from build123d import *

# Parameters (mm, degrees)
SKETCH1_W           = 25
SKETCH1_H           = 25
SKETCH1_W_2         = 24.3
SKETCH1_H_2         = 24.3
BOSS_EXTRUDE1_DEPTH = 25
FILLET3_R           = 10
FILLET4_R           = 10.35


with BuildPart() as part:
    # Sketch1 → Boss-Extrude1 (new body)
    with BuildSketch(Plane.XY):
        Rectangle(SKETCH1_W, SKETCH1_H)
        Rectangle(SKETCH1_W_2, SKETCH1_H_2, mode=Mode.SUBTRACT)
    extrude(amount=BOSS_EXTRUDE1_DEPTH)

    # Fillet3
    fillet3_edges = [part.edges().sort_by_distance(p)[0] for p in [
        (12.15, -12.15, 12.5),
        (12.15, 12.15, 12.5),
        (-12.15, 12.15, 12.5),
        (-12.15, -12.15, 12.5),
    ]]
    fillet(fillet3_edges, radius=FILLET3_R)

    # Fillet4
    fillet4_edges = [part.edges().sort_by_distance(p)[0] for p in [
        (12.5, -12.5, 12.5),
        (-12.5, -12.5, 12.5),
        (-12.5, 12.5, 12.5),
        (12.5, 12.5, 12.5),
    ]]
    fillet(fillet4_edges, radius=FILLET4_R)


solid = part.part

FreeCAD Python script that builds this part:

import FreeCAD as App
import Part
import Sketcher
from FreeCAD import Vector
Q = App.Units.Quantity


def edges_at(feature, points):
    """Names of the edges that pass closest to the given points."""
    edges = feature.Shape.Edges
    near = lambda p: min(range(len(edges)), key=lambda i: edges[i].distToShape(Part.Vertex(*p))[0])
    return sorted({f"Edge{near(p) + 1}" for p in points})

doc = App.newDocument("Part")
body = doc.addObject("PartDesign::Body", "Body")

# Sketch on XY plane
sketch1 = body.newObject("Sketcher::SketchObject", "Sketch")
sketch1.AttachmentSupport = (doc.getObject("XY_Plane"), [""])
sketch1.MapMode = "FlatFace"
sketch1.addGeometry([
    Part.LineSegment(Vector(-12, 12, 0), Vector(-12, -12, 0)),  # 0
    Part.LineSegment(Vector(-12, -12, 0), Vector(12, -12, 0)),  # 1
    Part.LineSegment(Vector(12, -12, 0), Vector(12, 12, 0)),  # 2
    Part.LineSegment(Vector(12, 12, 0), Vector(-12, 12, 0)),  # 3
    Part.LineSegment(Vector(12, -12, 0), Vector(-12, -12, 0)),  # 4
    Part.LineSegment(Vector(-12, -12, 0), Vector(-12, 12, 0)),  # 5
    Part.LineSegment(Vector(-12, 12, 0), Vector(12, 12, 0)),  # 6
    Part.LineSegment(Vector(12, 12, 0), Vector(12, -12, 0)),  # 7
], False)
sketch1.addConstraint([
    Sketcher.Constraint("Coincident", 0, 2, 1, 1),
    Sketcher.Constraint("Coincident", 1, 2, 2, 1),
    Sketcher.Constraint("Coincident", 2, 2, 3, 1),
    Sketcher.Constraint("Coincident", 3, 2, 0, 1),
    Sketcher.Constraint("Coincident", 4, 2, 5, 1),
    Sketcher.Constraint("Coincident", 5, 2, 6, 1),
    Sketcher.Constraint("Coincident", 6, 2, 7, 1),
    Sketcher.Constraint("Coincident", 7, 2, 4, 1),
    Sketcher.Constraint("Vertical", 0),
    Sketcher.Constraint("Horizontal", 1),
    Sketcher.Constraint("Vertical", 2),
    Sketcher.Constraint("Horizontal", 3),
    Sketcher.Constraint("Horizontal", 4),
    Sketcher.Constraint("Vertical", 5),
    Sketcher.Constraint("Horizontal", 6),
    Sketcher.Constraint("Vertical", 7),
    Sketcher.Constraint("Symmetric", 0, 2, 2, 2, -1, 1),
    Sketcher.Constraint("Symmetric", 4, 2, 6, 2, -1, 1),
    Sketcher.Constraint("Equal", 3, 0),
    Sketcher.Constraint("Equal", 6, 5),
    Sketcher.Constraint("DistanceX", 1, 1, 1, 2, Q("25 mm")),
    Sketcher.Constraint("DistanceX", 4, 2, 4, 1, Q("24.3 mm")),
])
pad1 = body.newObject("PartDesign::Pad", "Pad")
pad1.Profile = sketch1
pad1.Length = 25
doc.recompute()

fillet = body.newObject("PartDesign::Fillet", "Fillet")
fillet.Base = (pad1, edges_at(pad1, [
    (12.15, -12.15, 12.5),
    (12.15, 12.15, 12.5),
    (-12.15, 12.15, 12.5),
    (-12.15, -12.15, 12.5),
]))
fillet.Radius = 10
doc.recompute()

fillet2 = body.newObject("PartDesign::Fillet", "Fillet001")
fillet2.Base = (fillet, edges_at(fillet, [
    (12.5, -12.5, 12.5),
    (-12.5, -12.5, 12.5),
    (-12.5, 12.5, 12.5),
    (12.5, 12.5, 12.5),
]))
fillet2.Radius = 10.35

doc.recompute()
